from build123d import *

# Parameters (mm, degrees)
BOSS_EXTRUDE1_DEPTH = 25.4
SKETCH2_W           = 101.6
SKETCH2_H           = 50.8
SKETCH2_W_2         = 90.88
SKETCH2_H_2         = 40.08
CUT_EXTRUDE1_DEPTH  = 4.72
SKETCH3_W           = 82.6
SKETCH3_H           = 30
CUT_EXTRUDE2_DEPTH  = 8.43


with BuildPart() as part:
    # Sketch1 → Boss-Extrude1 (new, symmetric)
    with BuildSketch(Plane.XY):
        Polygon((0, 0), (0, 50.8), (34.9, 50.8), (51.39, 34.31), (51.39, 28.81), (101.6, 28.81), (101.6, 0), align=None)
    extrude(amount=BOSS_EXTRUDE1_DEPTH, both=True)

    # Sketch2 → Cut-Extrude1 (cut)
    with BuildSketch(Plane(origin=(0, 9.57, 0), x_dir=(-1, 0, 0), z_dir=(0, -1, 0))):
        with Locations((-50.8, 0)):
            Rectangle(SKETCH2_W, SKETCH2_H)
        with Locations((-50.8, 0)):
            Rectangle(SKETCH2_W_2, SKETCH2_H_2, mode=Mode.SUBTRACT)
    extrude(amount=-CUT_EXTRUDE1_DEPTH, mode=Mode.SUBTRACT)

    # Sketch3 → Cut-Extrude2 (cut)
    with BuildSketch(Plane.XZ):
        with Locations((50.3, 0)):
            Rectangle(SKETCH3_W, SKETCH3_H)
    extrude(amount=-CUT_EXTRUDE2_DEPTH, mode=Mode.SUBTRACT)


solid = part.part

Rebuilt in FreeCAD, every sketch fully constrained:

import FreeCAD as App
import Part
import Sketcher

V = App.Vector
Q = App.Units.Quantity

doc = App.newDocument("Part")
body = doc.addObject("PartDesign::Body", "Body")

# Sketch on XY plane
sketch1 = body.newObject("Sketcher::SketchObject", "Sketch")
sketch1.AttachmentSupport = (doc.getObject("XY_Plane"), [""])
sketch1.MapMode = "FlatFace"
sketch1.addGeometry(Part.LineSegment(V(0, 51, 0), V(0, 0, 0)), False)
sketch1.addGeometry(Part.LineSegment(V(0, 0, 0), V(102, 0, 0)), False)
sketch1.addGeometry(Part.LineSegment(V(102, 0, 0), V(102, 29, 0)), False)
sketch1.addGeometry(Part.LineSegment(V(102, 29, 0), V(51, 29, 0)), False)
sketch1.addGeometry(Part.LineSegment(V(51, 29, 0), V(51, 34, 0)), False)
sketch1.addGeometry(Part.LineSegment(V(51, 34, 0), V(35, 51, 0)), False)
sketch1.addGeometry(Part.LineSegment(V(35, 51, 0), V(0, 51, 0)), False)
sketch1.addConstraint(Sketcher.Constraint("Coincident", 0, 2, 1, 1))
sketch1.addConstraint(Sketcher.Constraint("Coincident", 1, 2, 2, 1))
sketch1.addConstraint(Sketcher.Constraint("Coincident", 2, 2, 3, 1))
sketch1.addConstraint(Sketcher.Constraint("Coincident", 3, 2, 4, 1))
sketch1.addConstraint(Sketcher.Constraint("Coincident", 4, 2, 5, 1))
sketch1.addConstraint(Sketcher.Constraint("Coincident", 5, 2, 6, 1))
sketch1.addConstraint(Sketcher.Constraint("Coincident", 6, 2, 0, 1))
sketch1.addConstraint(Sketcher.Constraint("Vertical", 0))
sketch1.addConstraint(Sketcher.Constraint("Horizontal", 1))
sketch1.addConstraint(Sketcher.Constraint("Vertical", 2))
sketch1.addConstraint(Sketcher.Constraint("Horizontal", 3))
sketch1.addConstraint(Sketcher.Constraint("Vertical", 4))
sketch1.addConstraint(Sketcher.Constraint("Horizontal", 6))
sketch1.addConstraint(Sketcher.Constraint("Coincident", 0, 2, -1, 1))
sketch1.addConstraint(Sketcher.Constraint("Angle", 5, Q("135 deg")))
sketch1.addConstraint(Sketcher.Constraint("DistanceX", 1, 1, 1, 2, Q("101.6 mm")))
sketch1.addConstraint(Sketcher.Constraint("DistanceX", 6, 2, 6, 1, Q("34.9 mm")))
sketch1.addConstraint(Sketcher.Constraint("DistanceY", 0, 2, 0, 1, Q("50.8 mm")))
sketch1.addConstraint(Sketcher.Constraint("DistanceY", 4, 1, 4, 2, Q("5.5 mm")))
sketch1.addConstraint(Sketcher.Constraint("DistanceX", 3, 2, 3, 1, Q("50.21 mm")))
pad1 = body.newObject("PartDesign::Pad", "Pad")
pad1.Profile = sketch1
pad1.Length = 50.8
pad1.Midplane = True

# Sketch on XZ plane
sketch2 = body.newObject("Sketcher::SketchObject", "Sketch001")
sketch2.AttachmentSupport = (doc.getObject("XZ_Plane"), [""])
sketch2.MapMode = "FlatFace"
sketch2.AttachmentOffset = App.Placement(V(0, 0, -9.57), App.Rotation())
sketch2.addGeometry(Part.LineSegment(V(102, -25, 0), V(102, 25, 0)), False)
sketch2.addGeometry(Part.LineSegment(V(102, 25, 0), V(0, 25, 0)), False)
sketch2.addGeometry(Part.LineSegment(V(0, 25, 0), V(0, -25, 0)), False)
sketch2.addGeometry(Part.LineSegment(V(0, -25, 0), V(102, -25, 0)), False)
sketch2.addGeometry(Part.LineSegment(V(5, 20, 0), V(96, 20, 0)), False)
sketch2.addGeometry(Part.LineSegment(V(96, 20, 0), V(96, -20, 0)), False)
sketch2.addGeometry(Part.LineSegment(V(96, -20, 0), V(5, -20, 0)), False)
sketch2.addGeometry(Part.LineSegment(V(5, -20, 0), V(5, 20, 0)), False)
sketch2.addConstraint(Sketcher.Constraint("Coincident", 0, 2, 1, 1))
sketch2.addConstraint(Sketcher.Constraint("Coincident", 1, 2, 2, 1))
sketch2.addConstraint(Sketcher.Constraint("Coincident", 2, 2, 3, 1))
sketch2.addConstraint(Sketcher.Constraint("Coincident", 3, 2, 0, 1))
sketch2.addConstraint(Sketcher.Constraint("Coincident", 4, 2, 5, 1))
sketch2.addConstraint(Sketcher.Constraint("Coincident", 5, 2, 6, 1))
sketch2.addConstraint(Sketcher.Constraint("Coincident", 6, 2, 7, 1))
sketch2.addConstraint(Sketcher.Constraint("Coincident", 7, 2, 4, 1))
sketch2.addConstraint(Sketcher.Constraint("Vertical", 0))
sketch2.addConstraint(Sketcher.Constraint("Horizontal", 1))
sketch2.addConstraint(Sketcher.Constraint("Vertical", 2))
sketch2.addConstraint(Sketcher.Constraint("Horizontal", 3))
sketch2.addConstraint(Sketcher.Constraint("Horizontal", 4))
sketch2.addConstraint(Sketcher.Constraint("Vertical", 5))
sketch2.addConstraint(Sketcher.Constraint("Horizontal", 6))
sketch2.addConstraint(Sketcher.Constraint("Vertical", 7))
sketch2.addConstraint(Sketcher.Constraint("Symmetric", 1, 2, 2, 2, -1, 1))
sketch2.addConstraint(Sketcher.Constraint("DistanceX", 1, 2, 1, 1, Q("101.6 mm")))
sketch2.addConstraint(Sketcher.Constraint("DistanceY", 0, 1, 0, 2, Q("50.8 mm")))
sketch2.addConstraint(Sketcher.Constraint("DistanceX", 4, 1, 4, 2, Q("90.88 mm")))
sketch2.addConstraint(Sketcher.Constraint("DistanceY", 5, 2, 5, 1, Q("40.08 mm")))
sketch2.addConstraint(Sketcher.Constraint("DistanceX", -1, 1, 4, 2, Q("96.24 mm")))
sketch2.addConstraint(Sketcher.Constraint("DistanceY", -1, 1, 4, 2, Q("20.04 mm")))
pocket1 = body.newObject("PartDesign::Pocket", "Pocket")
pocket1.Profile = sketch2
pocket1.Length = 4.72

# Sketch on XZ plane
sketch3 = body.newObject("Sketcher::SketchObject", "Sketch002")
sketch3.AttachmentSupport = (doc.getObject("XZ_Plane"), [""])
sketch3.MapMode = "FlatFace"
sketch3.addGeometry(Part.LineSegment(V(9, 15, 0), V(9, -15, 0)), False)
sketch3.addGeometry(Part.LineSegment(V(9, -15, 0), V(92, -15, 0)), False)
sketch3.addGeometry(Part.LineSegment(V(92, -15, 0), V(92, 15, 0)), False)
sketch3.addGeometry(Part.LineSegment(V(92, 15, 0), V(9, 15, 0)), False)
sketch3.addConstraint(Sketcher.Constraint("Coincident", 0, 2, 1, 1))
sketch3.addConstraint(Sketcher.Constraint("Coincident", 1, 2, 2, 1))
sketch3.addConstraint(Sketcher.Constraint("Coincident", 2, 2, 3, 1))
sketch3.addConstraint(Sketcher.Constraint("Coincident", 3, 2, 0, 1))
sketch3.addConstraint(Sketcher.Constraint("Vertical", 0))
sketch3.addConstraint(Sketcher.Constraint("Horizontal", 1))
sketch3.addConstraint(Sketcher.Constraint("Vertical", 2))
sketch3.addConstraint(Sketcher.Constraint("Horizontal", 3))
sketch3.addConstraint(Sketcher.Constraint("DistanceY", 0, 2, 0, 1, Q("30 mm")))
sketch3.addConstraint(Sketcher.Constraint("DistanceX", 1, 1, 1, 2, Q("82.6 mm")))
sketch3.addConstraint(Sketcher.Constraint("DistanceX", -1, 1, 0, 2, Q("9 mm")))
sketch3.addConstraint(Sketcher.Constraint("DistanceY", 0, 2, -1, 1, Q("15 mm")))
pocket2 = body.newObject("PartDesign::Pocket", "Pocket001")
pocket2.Profile = sketch3
pocket2.Length = 8.43

doc.recompute()
